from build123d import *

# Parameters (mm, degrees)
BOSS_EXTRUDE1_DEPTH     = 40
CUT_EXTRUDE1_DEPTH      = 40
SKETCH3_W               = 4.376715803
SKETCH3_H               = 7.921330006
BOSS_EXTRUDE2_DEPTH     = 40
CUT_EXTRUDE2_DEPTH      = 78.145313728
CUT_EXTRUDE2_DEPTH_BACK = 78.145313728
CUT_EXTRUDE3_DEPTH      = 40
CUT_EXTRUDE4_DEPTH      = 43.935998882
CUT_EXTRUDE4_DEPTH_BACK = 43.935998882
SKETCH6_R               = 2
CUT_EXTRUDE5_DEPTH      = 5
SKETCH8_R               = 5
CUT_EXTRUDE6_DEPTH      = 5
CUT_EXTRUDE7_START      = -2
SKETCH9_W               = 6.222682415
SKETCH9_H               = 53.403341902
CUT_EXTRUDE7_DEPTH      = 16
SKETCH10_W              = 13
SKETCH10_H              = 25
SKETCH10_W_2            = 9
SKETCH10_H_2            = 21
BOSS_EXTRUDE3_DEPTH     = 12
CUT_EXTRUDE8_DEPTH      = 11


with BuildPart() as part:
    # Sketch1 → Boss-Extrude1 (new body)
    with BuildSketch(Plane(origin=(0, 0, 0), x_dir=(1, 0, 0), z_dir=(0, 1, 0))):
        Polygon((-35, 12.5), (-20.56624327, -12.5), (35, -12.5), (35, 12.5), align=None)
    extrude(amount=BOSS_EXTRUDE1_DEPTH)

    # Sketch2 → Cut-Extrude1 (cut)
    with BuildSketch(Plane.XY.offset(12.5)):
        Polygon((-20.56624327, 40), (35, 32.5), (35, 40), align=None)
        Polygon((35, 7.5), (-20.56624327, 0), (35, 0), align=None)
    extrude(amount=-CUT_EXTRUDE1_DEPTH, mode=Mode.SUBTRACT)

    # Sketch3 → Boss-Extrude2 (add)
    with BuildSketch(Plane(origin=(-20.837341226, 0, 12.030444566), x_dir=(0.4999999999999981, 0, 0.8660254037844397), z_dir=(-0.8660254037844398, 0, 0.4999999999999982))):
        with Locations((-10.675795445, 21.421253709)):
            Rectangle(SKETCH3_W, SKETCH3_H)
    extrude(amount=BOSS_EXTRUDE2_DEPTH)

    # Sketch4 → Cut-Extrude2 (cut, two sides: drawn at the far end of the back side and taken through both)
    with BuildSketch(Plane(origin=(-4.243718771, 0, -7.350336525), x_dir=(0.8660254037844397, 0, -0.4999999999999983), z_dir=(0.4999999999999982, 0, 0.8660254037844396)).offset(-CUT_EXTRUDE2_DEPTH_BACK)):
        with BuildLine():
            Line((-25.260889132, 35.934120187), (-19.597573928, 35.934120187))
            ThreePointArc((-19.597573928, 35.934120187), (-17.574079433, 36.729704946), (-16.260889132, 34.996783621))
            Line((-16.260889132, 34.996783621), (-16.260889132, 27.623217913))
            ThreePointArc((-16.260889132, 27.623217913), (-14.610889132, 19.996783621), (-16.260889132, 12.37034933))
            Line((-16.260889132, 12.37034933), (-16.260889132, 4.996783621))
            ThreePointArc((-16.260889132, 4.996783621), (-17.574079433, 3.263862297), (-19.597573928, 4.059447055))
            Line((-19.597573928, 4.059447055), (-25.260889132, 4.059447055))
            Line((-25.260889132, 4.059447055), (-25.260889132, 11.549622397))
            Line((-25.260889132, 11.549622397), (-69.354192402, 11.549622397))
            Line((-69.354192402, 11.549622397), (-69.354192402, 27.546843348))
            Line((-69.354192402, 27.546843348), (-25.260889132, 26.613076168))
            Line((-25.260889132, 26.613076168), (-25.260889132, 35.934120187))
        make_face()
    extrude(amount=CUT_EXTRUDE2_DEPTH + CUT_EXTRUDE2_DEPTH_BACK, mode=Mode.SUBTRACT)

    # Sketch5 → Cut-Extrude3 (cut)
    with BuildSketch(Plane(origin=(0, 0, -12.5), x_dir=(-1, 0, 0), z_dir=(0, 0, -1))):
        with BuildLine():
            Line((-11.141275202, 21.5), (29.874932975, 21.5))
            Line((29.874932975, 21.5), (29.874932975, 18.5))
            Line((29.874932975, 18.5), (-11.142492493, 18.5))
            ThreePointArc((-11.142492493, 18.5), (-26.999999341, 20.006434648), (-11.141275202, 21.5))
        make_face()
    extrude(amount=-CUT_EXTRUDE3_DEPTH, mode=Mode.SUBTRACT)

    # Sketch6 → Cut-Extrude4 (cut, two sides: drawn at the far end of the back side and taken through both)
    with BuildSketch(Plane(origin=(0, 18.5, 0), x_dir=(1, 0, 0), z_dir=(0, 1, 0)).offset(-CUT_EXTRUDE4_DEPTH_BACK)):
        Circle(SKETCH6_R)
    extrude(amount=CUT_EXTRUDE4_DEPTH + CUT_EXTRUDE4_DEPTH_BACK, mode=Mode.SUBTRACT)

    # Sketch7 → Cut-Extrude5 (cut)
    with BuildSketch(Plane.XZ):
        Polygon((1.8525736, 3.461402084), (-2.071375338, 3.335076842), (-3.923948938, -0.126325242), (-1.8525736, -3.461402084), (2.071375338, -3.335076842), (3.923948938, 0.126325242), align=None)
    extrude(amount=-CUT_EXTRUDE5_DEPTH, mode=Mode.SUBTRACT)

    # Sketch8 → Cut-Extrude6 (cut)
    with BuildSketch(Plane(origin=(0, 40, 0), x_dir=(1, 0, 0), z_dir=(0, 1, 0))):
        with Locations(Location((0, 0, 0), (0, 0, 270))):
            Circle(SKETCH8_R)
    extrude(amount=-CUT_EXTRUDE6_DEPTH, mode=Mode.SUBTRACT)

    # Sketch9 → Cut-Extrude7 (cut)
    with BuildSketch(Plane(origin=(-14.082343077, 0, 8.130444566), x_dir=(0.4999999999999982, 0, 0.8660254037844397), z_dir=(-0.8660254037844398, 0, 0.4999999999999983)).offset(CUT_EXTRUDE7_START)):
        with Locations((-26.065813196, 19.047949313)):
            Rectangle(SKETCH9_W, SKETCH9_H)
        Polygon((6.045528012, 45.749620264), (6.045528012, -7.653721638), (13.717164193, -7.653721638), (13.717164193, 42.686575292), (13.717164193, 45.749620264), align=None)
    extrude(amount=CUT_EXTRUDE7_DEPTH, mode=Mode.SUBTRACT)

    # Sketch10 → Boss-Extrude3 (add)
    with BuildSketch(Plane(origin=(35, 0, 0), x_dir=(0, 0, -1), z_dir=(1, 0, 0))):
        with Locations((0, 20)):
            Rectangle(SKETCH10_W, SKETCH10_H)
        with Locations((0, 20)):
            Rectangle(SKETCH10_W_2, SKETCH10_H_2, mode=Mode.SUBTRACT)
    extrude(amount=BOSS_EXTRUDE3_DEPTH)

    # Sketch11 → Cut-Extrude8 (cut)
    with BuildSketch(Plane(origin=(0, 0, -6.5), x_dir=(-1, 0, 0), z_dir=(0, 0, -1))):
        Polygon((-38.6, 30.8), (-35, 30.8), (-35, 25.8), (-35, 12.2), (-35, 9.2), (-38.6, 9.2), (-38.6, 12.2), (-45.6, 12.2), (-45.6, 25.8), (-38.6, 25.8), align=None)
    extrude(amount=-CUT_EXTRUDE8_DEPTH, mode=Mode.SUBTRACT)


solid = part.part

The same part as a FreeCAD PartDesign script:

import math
import FreeCAD as App
import Part
import Sketcher
from FreeCAD import Vector
Q = App.Units.Quantity


def add_polygon(sketch, points):
    """Adds a closed chain of lines whose ends are joined by coincident constraints."""
    first, n = sketch.GeometryCount, len(points)
    for a, b in zip(points, points[1:] + points[:1]):
        sketch.addGeometry(Part.LineSegment(App.Vector(*a, 0), App.Vector(*b, 0)), False)
    for i in range(n):
        sketch.addConstraint(Sketcher.Constraint("Coincident", first + i, 2, first + (i + 1) % n, 1))

doc = App.newDocument("Part")
body = doc.addObject("PartDesign::Body", "Body")

sketch1 = body.newObject("Sketcher::SketchObject", "Sketch")
sketch1.AttachmentSupport = (doc.getObject("XZ_Plane"), [""])
sketch1.MapMode = "FlatFace"
add_polygon(sketch1, [(-35, -12), (-21, 12), (35, 12), (35, -12)])
sketch1.addConstraint(Sketcher.Constraint("Horizontal", 1))
sketch1.addConstraint(Sketcher.Constraint("Vertical", 2))
sketch1.addConstraint(Sketcher.Constraint("Horizontal", 3))
sketch1.addConstraint(Sketcher.Constraint("Symmetric", 1, 2, 3, 2, -1, 1))
sketch1.addConstraint(Sketcher.Constraint("DistanceX", 3, 2, 3, 1, Q("70 mm")))
sketch1.addConstraint(Sketcher.Constraint("DistanceY", 2, 2, 2, 1, Q("25 mm")))
sketch1.addConstraint(Sketcher.Constraint("Angle", 0, Q("60 deg")))
pad1 = body.newObject("PartDesign::Pad", "Pad")
pad1.Profile = sketch1
pad1.Length = 40
pad1.Reversed = True

sketch2 = body.newObject("Sketcher::SketchObject", "Sketch001")
sketch2.AttachmentSupport = (doc.getObject("XY_Plane"), [""])
sketch2.MapMode = "FlatFace"
sketch2.AttachmentOffset = App.Placement(Vector(0, 0, 12.5), App.Rotation())
add_polygon(sketch2, [(-21, 40), (35, 32), (35, 40)])
add_polygon(sketch2, [(35, 8), (-21, 0), (35, 0)])
sketch2.addConstraint(Sketcher.Constraint("Vertical", 1))
sketch2.addConstraint(Sketcher.Constraint("Horizontal", 2))
sketch2.addConstraint(Sketcher.Constraint("Horizontal", 4))
sketch2.addConstraint(Sketcher.Constraint("Vertical", 5))
sketch2.addConstraint(Sketcher.Constraint("PointOnObject", 3, 2, -1))
sketch2.addConstraint(Sketcher.Constraint("Vertical", 2, 2, 3, 2))
sketch2.addConstraint(Sketcher.Constraint("Vertical", 1, 2, 4, 2))
sketch2.addConstraint(Sketcher.Constraint("Equal", 1, 5))
sketch2.addConstraint(Sketcher.Constraint("DistanceY", 1, 1, 1, 2, Q("7.5 mm")))
sketch2.addConstraint(Sketcher.Constraint("DistanceX", -1, 1, 0, 2, Q("35 mm")))
sketch2.addConstraint(Sketcher.Constraint("DistanceY", -1, 1, 1, 2, Q("40 mm")))
sketch2.addConstraint(Sketcher.Constraint("Distance", 0, Q("56.070111 mm")))
pocket1 = body.newObject("PartDesign::Pocket", "Pocket")
pocket1.Profile = sketch2
pocket1.Length = 40

sketch3 = body.newObject("Sketcher::SketchObject", "Sketch002")
sketch3.Placement = App.Placement(Vector(-20.837341, 0, 12.030445), App.Rotation(Vector(0.5, 0, 0.866025404), Vector(0, 1, 0), Vector(-0.866025404, 0, 0.5), "ZXY"))
add_polygon(sketch3, [(-12.9, 25.4), (-12.9, 17.5), (-8.5, 17.5), (-8.5, 25.4)])
sketch3.addConstraint(Sketcher.Constraint("Vertical", 0))
sketch3.addConstraint(Sketcher.Constraint("Horizontal", 1))
sketch3.addConstraint(Sketcher.Constraint("Vertical", 2))
sketch3.addConstraint(Sketcher.Constraint("Horizontal", 3))
sketch3.addConstraint(Sketcher.Constraint("DistanceY", 0, 2, 0, 1, Q("7.92133 mm")))
sketch3.addConstraint(Sketcher.Constraint("DistanceX", 1, 1, 1, 2, Q("4.376716 mm")))
sketch3.addConstraint(Sketcher.Constraint("DistanceY", -1, 1, 0, 2, Q("17.460589 mm")))
sketch3.addConstraint(Sketcher.Constraint("DistanceX", 0, 2, -1, 1, Q("12.864153 mm")))
pad2 = body.newObject("PartDesign::Pad", "Pad001")
pad2.Profile = sketch3
pad2.Length = 40

sketch4 = body.newObject("Sketcher::SketchObject", "Sketch003")
sketch4.Placement = App.Placement(Vector(-4.243719, 0, -7.350337), App.Rotation(Vector(0.866025404, 0, -0.5), Vector(0, 1, 0), Vector(0.5, 0, 0.866025404), "ZXY"))
sketch4.addGeometry(Part.LineSegment(Vector(-19.6, 35.9, 0), Vector(-25.3, 35.9, 0)), False)
sketch4.addGeometry(Part.LineSegment(Vector(-25.3, 35.9, 0), Vector(-25.3, 26.6, 0)), False)
sketch4.addGeometry(Part.LineSegment(Vector(-25.3, 26.6, 0), Vector(-69.4, 27.5, 0)), False)
sketch4.addGeometry(Part.LineSegment(Vector(-69.4, 27.5, 0), Vector(-69.4, 11.5, 0)), False)
sketch4.addGeometry(Part.LineSegment(Vector(-69.4, 11.5, 0), Vector(-25.3, 11.5, 0)), False)
sketch4.addGeometry(Part.LineSegment(Vector(-25.3, 11.5, 0), Vector(-25.3, 4.1, 0)), False)
sketch4.addGeometry(Part.LineSegment(Vector(-25.3, 4.1, 0), Vector(-19.6, 4.1, 0)), False)
sketch4.addGeometry(Part.ArcOfCircle(Part.Circle(Vector(-18.1, 5, 0), Vector(0, 0, 1), 1.8), math.radians(-149), math.radians(0)), False)
sketch4.addGeometry(Part.LineSegment(Vector(-16.3, 5, 0), Vector(-16.3, 12.4, 0)), False)
sketch4.addGeometry(Part.ArcOfCircle(Part.Circle(Vector(-33.1, 20, 0), Vector(0, 0, 1), 18.5), math.radians(-24), math.radians(24)), False)
sketch4.addGeometry(Part.LineSegment(Vector(-16.3, 27.6, 0), Vector(-16.3, 35, 0)), False)
sketch4.addGeometry(Part.ArcOfCircle(Part.Circle(Vector(-18.1, 35, 0), Vector(0, 0, 1), 1.8), math.radians(0), math.radians(149)), False)
sketch4.addConstraint(Sketcher.Constraint("Coincident", 0, 2, 1, 1))
sketch4.addConstraint(Sketcher.Constraint("Coincident", 1, 2, 2, 1))
sketch4.addConstraint(Sketcher.Constraint("Coincident", 2, 2, 3, 1))
sketch4.addConstraint(Sketcher.Constraint("Coincident", 3, 2, 4, 1))
sketch4.addConstraint(Sketcher.Constraint("Coincident", 4, 2, 5, 1))
sketch4.addConstraint(Sketcher.Constraint("Coincident", 5, 2, 6, 1))
sketch4.addConstraint(Sketcher.Constraint("Coincident", 6, 2, 7, 1))
sketch4.addConstraint(Sketcher.Constraint("Tangent", 7, 2, 8, 1))
sketch4.addConstraint(Sketcher.Constraint("Coincident", 8, 2, 9, 1))
sketch4.addConstraint(Sketcher.Constraint("Coincident", 9, 2, 10, 1))
sketch4.addConstraint(Sketcher.Constraint("Tangent", 10, 2, 11, 1))
sketch4.addConstraint(Sketcher.Constraint("Coincident", 11, 2, 0, 1))
sketch4.addConstraint(Sketcher.Constraint("Horizontal", 0))
sketch4.addConstraint(Sketcher.Constraint("Vertical", 1))
sketch4.addConstraint(Sketcher.Constraint("Vertical", 3))
sketch4.addConstraint(Sketcher.Constraint("Horizontal", 4))
sketch4.addConstraint(Sketcher.Constraint("Vertical", 5))
sketch4.addConstraint(Sketcher.Constraint("Horizontal", 6))
sketch4.addConstraint(Sketcher.Constraint("Vertical", 8))
sketch4.addConstraint(Sketcher.Constraint("Vertical", 10))
sketch4.addConstraint(Sketcher.Constraint("Equal", 7, 11))
sketch4.addConstraint(Sketcher.Constraint("Vertical", 7, 3, 11, 3))
sketch4.addConstraint(Sketcher.Constraint("Vertical", 1, 2, 4, 2))
sketch4.addConstraint(Sketcher.Constraint("Vertical", 6, 2, 11, 2))
sketch4.addConstraint(Sketcher.Constraint("Equal", 8, 10))
sketch4.addConstraint(Sketcher.Constraint("Radius", 7, Q("1.8 mm")))
sketch4.addConstraint(Sketcher.Constraint("Radius", 9, Q("18.45 mm")))
sketch4.addConstraint(Sketcher.Constraint("DistanceX", 9, 3, 7, 3, Q("15 mm")))
sketch4.addConstraint(Sketcher.Constraint("DistanceY", 7, 3, 9, 3, Q("15 mm")))
sketch4.addConstraint(Sketcher.Constraint("DistanceX", 5, 2, 7, 2, Q("9 mm")))
sketch4.addConstraint(Sketcher.Constraint("DistanceY", 3, 2, 3, 1, Q("15.997221 mm")))
sketch4.addConstraint(Sketcher.Constraint("Distance", 2, Q("44.103189 mm")))
sketch4.addConstraint(Sketcher.Constraint("DistanceX", 0, 2, 0, 1, Q("5.663315 mm")))
sketch4.addConstraint(Sketcher.Constraint("DistanceX", 4, 1, 4, 2, Q("44.093303 mm")))
sketch4.addConstraint(Sketcher.Constraint("DistanceY", 1, 2, 1, 1, Q("9.321044 mm")))
sketch4.addConstraint(Sketcher.Constraint("DistanceX", 7, 3, -1, 1, Q("18.060889 mm")))
sketch4.addConstraint(Sketcher.Constraint("DistanceY", -1, 1, 0, 2, Q("35.93412 mm")))
pocket2 = body.newObject("PartDesign::Pocket", "Pocket001")
pocket2.Profile = sketch4
pocket2.Type = "ThroughAll"
pocket2.Midplane = True

sketch5 = body.newObject("Sketcher::SketchObject", "Sketch004")
sketch5.AttachmentSupport = (doc.getObject("XY_Plane"), [""])
sketch5.MapMode = "FlatFace"
sketch5.AttachmentOffset = App.Placement(Vector(0, 0, -12.5), App.Rotation())
sketch5.addGeometry(Part.LineSegment(Vector(-29.9, 21.5, 0), Vector(11.1, 21.5, 0)), False)
sketch5.addGeometry(Part.ArcOfCircle(Part.Circle(Vector(19, 20, 0), Vector(0, 0, 1), 8), math.radians(-169), math.radians(169)), False)
sketch5.addGeometry(Part.LineSegment(Vector(11.1, 18.5, 0), Vector(-29.9, 18.5, 0)), False)
sketch5.addGeometry(Part.LineSegment(Vector(-29.9, 18.5, 0), Vector(-29.9, 21.5, 0)), False)
sketch5.addConstraint(Sketcher.Constraint("Coincident", 0, 2, 1, 2))
sketch5.addConstraint(Sketcher.Constraint("Coincident", 1, 1, 2, 1))
sketch5.addConstraint(Sketcher.Constraint("Coincident", 2, 2, 3, 1))
sketch5.addConstraint(Sketcher.Constraint("Coincident", 3, 2, 0, 1))
sketch5.addConstraint(Sketcher.Constraint("Horizontal", 0))
sketch5.addConstraint(Sketcher.Constraint("Horizontal", 2))
sketch5.addConstraint(Sketcher.Constraint("Vertical", 3))
sketch5.addConstraint(Sketcher.Constraint("Radius", 1, Q("8 mm")))
sketch5.addConstraint(Sketcher.Constraint("DistanceY", 3, 1, 3, 2, Q("3 mm")))
sketch5.addConstraint(Sketcher.Constraint("DistanceX", -1, 1, 1, 3, Q("19 mm")))
sketch5.addConstraint(Sketcher.Constraint("DistanceY", -1, 1, 0, 2, Q("21.5 mm")))
sketch5.addConstraint(Sketcher.Constraint("DistanceX", 0, 1, 0, 2, Q("41.016208 mm")))
sketch5.addConstraint(Sketcher.Constraint("DistanceX", 2, 2, 2, 1, Q("41.017425 mm")))
pocket3 = body.newObject("PartDesign::Pocket", "Pocket002")
pocket3.Profile = sketch5
pocket3.Length = 40
pocket3.Reversed = True

sketch6 = body.newObject("Sketcher::SketchObject", "Sketch005")
sketch6.AttachmentSupport = (doc.getObject("XZ_Plane"), [""])
sketch6.MapMode = "FlatFace"
sketch6.AttachmentOffset = App.Placement(Vector(0, 0, -18.5), App.Rotation())
sketch6.addGeometry(Part.Circle(Vector(0, 0, 0), Vector(0, 0, 1), 2), False)
sketch6.addConstraint(Sketcher.Constraint("Coincident", 0, 3, -1, 1))
sketch6.addConstraint(Sketcher.Constraint("Diameter", 0, Q("4 mm")))
pocket4 = body.newObject("PartDesign::Pocket", "Pocket003")
pocket4.Profile = sketch6
pocket4.Type = "ThroughAll"
pocket4.Midplane = True

sketch7 = body.newObject("Sketcher::SketchObject", "Sketch006")
sketch7.AttachmentSupport = (doc.getObject("XZ_Plane"), [""])
sketch7.MapMode = "FlatFace"
add_polygon(sketch7, [(1.9, 3.5), (-2.1, 3.3), (-3.9, -0.1), (-1.9, -3.5), (2.1, -3.3), (3.9, 0.1)])
sketch7.addConstraint(Sketcher.Constraint("Symmetric", 0, 2, 3, 2, -1, 1))
sketch7.addConstraint(Sketcher.Constraint("Symmetric", 1, 2, 4, 2, -1, 1))
sketch7.addConstraint(Sketcher.Constraint("Symmetric", 2, 2, 5, 2, -1, 1))
sketch7.addConstraint(Sketcher.Constraint("Equal", 0, 1))
sketch7.addConstraint(Sketcher.Constraint("Equal", 1, 2))
sketch7.addConstraint(Sketcher.Constraint("DistanceX", 0, 2, 2, 2, Q("0.218802 mm")))
sketch7.addConstraint(Sketcher.Constraint("Distance", 0, Q("3.925982 mm")))
sketch7.addConstraint(Sketcher.Constraint("DistanceX", 1, 2, -1, 1, Q("3.923949 mm")))
sketch7.addConstraint(Sketcher.Constraint("DistanceY", 2, 2, 0, 2, Q("6.796479 mm")))
pocket5 = body.newObject("PartDesign::Pocket", "Pocket004")
pocket5.Profile = sketch7
pocket5.Length = 5

sketch8 = body.newObject("Sketcher::SketchObject", "Sketch007")
sketch8.AttachmentSupport = (doc.getObject("XZ_Plane"), [""])
sketch8.MapMode = "FlatFace"
sketch8.AttachmentOffset = App.Placement(Vector(0, 0, -40), App.Rotation())
sketch8.addGeometry(Part.Circle(Vector(0, 0, 0), Vector(0, 0, 1), 5), False)
sketch8.addConstraint(Sketcher.Constraint("Coincident", 0, 3, -1, 1))
sketch8.addConstraint(Sketcher.Constraint("Diameter", 0, Q("10 mm")))
pocket6 = body.newObject("PartDesign::Pocket", "Pocket005")
pocket6.Profile = sketch8
pocket6.Length = 5
pocket6.Reversed = True

sketch9 = body.newObject("Sketcher::SketchObject", "Sketch008")
sketch9.Placement = App.Placement(Vector(-12.350292, 0, 7.130445), App.Rotation(Vector(0.5, 0, 0.866025404), Vector(0, 1, 0), Vector(-0.866025404, 0, 0.5), "ZXY"))
add_polygon(sketch9, [(-29, 46), (-29, -8), (-23, -8), (-23, 46)])
add_polygon(sketch9, [(6, 46), (6, -8), (14, -8), (14, 46)])
sketch9.addConstraint(Sketcher.Constraint("Vertical", 0))
sketch9.addConstraint(Sketcher.Constraint("Horizontal", 1))
sketch9.addConstraint(Sketcher.Constraint("Vertical", 2))
sketch9.addConstraint(Sketcher.Constraint("Horizontal", 3))
sketch9.addConstraint(Sketcher.Constraint("Vertical", 4))
sketch9.addConstraint(Sketcher.Constraint("Horizontal", 5))
sketch9.addConstraint(Sketcher.Constraint("Vertical", 6))
sketch9.addConstraint(Sketcher.Constraint("Horizontal", 7))
sketch9.addConstraint(Sketcher.Constraint("Horizontal", 1, 2, 4, 2))
sketch9.addConstraint(Sketcher.Constraint("Horizontal", 3, 2, 6, 2))
sketch9.addConstraint(Sketcher.Constraint("DistanceX", 1, 2, 4, 2, Q("29 mm")))
sketch9.addConstraint(Sketcher.Constraint("DistanceY", 0, 2, 0, 1, Q("53.403342 mm")))
sketch9.addConstraint(Sketcher.Constraint("DistanceX", 1, 1, 1, 2, Q("6.222682 mm")))
sketch9.addConstraint(Sketcher.Constraint("DistanceX", 5, 1, 5, 2, Q("7.671636 mm")))
sketch9.addConstraint(Sketcher.Constraint("DistanceY", 0, 2, -1, 1, Q("7.653722 mm")))
sketch9.addConstraint(Sketcher.Constraint("DistanceX", 1, 2, -1, 1, Q("22.954472 mm")))
pocket7 = body.newObject("PartDesign::Pocket", "Pocket006")
pocket7.Profile = sketch9
pocket7.Length = 16
pocket7.Reversed = True

sketch10 = body.newObject("Sketcher::SketchObject", "Sketch009")
sketch10.AttachmentSupport = (doc.getObject("YZ_Plane"), [""])
sketch10.MapMode = "FlatFace"
sketch10.AttachmentOffset = App.Placement(Vector(0, 0, 35), App.Rotation())
add_polygon(sketch10, [(32, 6), (8, 6), (8, -6), (32, -6)])
add_polygon(sketch10, [(10, -4), (10, 4), (30, 4), (30, -4)])
sketch10.addConstraint(Sketcher.Constraint("Horizontal", 0))
sketch10.addConstraint(Sketcher.Constraint("Vertical", 1))
sketch10.addConstraint(Sketcher.Constraint("Horizontal", 2))
sketch10.addConstraint(Sketcher.Constraint("Vertical", 3))
sketch10.addConstraint(Sketcher.Constraint("Vertical", 4))
sketch10.addConstraint(Sketcher.Constraint("Horizontal", 5))
sketch10.addConstraint(Sketcher.Constraint("Vertical", 6))
sketch10.addConstraint(Sketcher.Constraint("Horizontal", 7))
sketch10.addConstraint(Sketcher.Constraint("DistanceX", 0, 2, 0, 1, Q("25 mm")))
sketch10.addConstraint(Sketcher.Constraint("DistanceX", 5, 1, 5, 2, Q("21 mm")))
sketch10.addConstraint(Sketcher.Constraint("DistanceY", 1, 2, 1, 1, Q("13 mm")))
sketch10.addConstraint(Sketcher.Constraint("DistanceY", 4, 1, 4, 2, Q("9 mm")))
sketch10.addConstraint(Sketcher.Constraint("DistanceX", 0, 2, 4, 2, Q("2 mm")))
sketch10.addConstraint(Sketcher.Constraint("DistanceY", 4, 2, 0, 2, Q("2 mm")))
sketch10.addConstraint(Sketcher.Constraint("DistanceX", -1, 1, 0, 2, Q("7.5 mm")))
sketch10.addConstraint(Sketcher.Constraint("DistanceY", -1, 1, 0, 2, Q("6.5 mm")))
pad3 = body.newObject("PartDesign::Pad", "Pad002")
pad3.Profile = sketch10
pad3.Length = 12

sketch11 = body.newObject("Sketcher::SketchObject", "Sketch010")
sketch11.AttachmentSupport = (doc.getObject("XY_Plane"), [""])
sketch11.MapMode = "FlatFace"
sketch11.AttachmentOffset = App.Placement(Vector(0, 0, -6.5), App.Rotation())
add_polygon(sketch11, [(35, 30.8), (38.6, 30.8), (38.6, 25.8), (45.6, 25.8), (45.6, 12.2), (38.6, 12.2), (38.6, 9.2), (35, 9.2)])
sketch11.addConstraint(Sketcher.Constraint("Horizontal", 0))
sketch11.addConstraint(Sketcher.Constraint("Vertical", 1))
sketch11.addConstraint(Sketcher.Constraint("Horizontal", 2))
sketch11.addConstraint(Sketcher.Constraint("Vertical", 3))
sketch11.addConstraint(Sketcher.Constraint("Horizontal", 4))
sketch11.addConstraint(Sketcher.Constraint("Vertical", 5))
sketch11.addConstraint(Sketcher.Constraint("Horizontal", 6))
sketch11.addConstraint(Sketcher.Constraint("Vertical", 7))
sketch11.addConstraint(Sketcher.Constraint("Vertical", 1, 2, 4, 2))
sketch11.addConstraint(Sketcher.Constraint("DistanceX", 2, 1, 2, 2, Q("7 mm")))
sketch11.addConstraint(Sketcher.Constraint("DistanceY", 1, 2, 1, 1, Q("5 mm")))
sketch11.addConstraint(Sketcher.Constraint("DistanceY", 5, 2, 5, 1, Q("3 mm")))
sketch11.addConstraint(Sketcher.Constraint("DistanceX", 0, 1, 0, 2, Q("3.6 mm")))
sketch11.addConstraint(Sketcher.Constraint("DistanceY", 3, 2, 3, 1, Q("13.6 mm")))
sketch11.addConstraint(Sketcher.Constraint("DistanceX", -1, 1, 6, 2, Q("35 mm")))
sketch11.addConstraint(Sketcher.Constraint("DistanceY", -1, 1, 0, 2, Q("30.8 mm")))
pocket8 = body.newObject("PartDesign::Pocket", "Pocket007")
pocket8.Profile = sketch11
pocket8.Length = 11
pocket8.Reversed = True

doc.recompute()
